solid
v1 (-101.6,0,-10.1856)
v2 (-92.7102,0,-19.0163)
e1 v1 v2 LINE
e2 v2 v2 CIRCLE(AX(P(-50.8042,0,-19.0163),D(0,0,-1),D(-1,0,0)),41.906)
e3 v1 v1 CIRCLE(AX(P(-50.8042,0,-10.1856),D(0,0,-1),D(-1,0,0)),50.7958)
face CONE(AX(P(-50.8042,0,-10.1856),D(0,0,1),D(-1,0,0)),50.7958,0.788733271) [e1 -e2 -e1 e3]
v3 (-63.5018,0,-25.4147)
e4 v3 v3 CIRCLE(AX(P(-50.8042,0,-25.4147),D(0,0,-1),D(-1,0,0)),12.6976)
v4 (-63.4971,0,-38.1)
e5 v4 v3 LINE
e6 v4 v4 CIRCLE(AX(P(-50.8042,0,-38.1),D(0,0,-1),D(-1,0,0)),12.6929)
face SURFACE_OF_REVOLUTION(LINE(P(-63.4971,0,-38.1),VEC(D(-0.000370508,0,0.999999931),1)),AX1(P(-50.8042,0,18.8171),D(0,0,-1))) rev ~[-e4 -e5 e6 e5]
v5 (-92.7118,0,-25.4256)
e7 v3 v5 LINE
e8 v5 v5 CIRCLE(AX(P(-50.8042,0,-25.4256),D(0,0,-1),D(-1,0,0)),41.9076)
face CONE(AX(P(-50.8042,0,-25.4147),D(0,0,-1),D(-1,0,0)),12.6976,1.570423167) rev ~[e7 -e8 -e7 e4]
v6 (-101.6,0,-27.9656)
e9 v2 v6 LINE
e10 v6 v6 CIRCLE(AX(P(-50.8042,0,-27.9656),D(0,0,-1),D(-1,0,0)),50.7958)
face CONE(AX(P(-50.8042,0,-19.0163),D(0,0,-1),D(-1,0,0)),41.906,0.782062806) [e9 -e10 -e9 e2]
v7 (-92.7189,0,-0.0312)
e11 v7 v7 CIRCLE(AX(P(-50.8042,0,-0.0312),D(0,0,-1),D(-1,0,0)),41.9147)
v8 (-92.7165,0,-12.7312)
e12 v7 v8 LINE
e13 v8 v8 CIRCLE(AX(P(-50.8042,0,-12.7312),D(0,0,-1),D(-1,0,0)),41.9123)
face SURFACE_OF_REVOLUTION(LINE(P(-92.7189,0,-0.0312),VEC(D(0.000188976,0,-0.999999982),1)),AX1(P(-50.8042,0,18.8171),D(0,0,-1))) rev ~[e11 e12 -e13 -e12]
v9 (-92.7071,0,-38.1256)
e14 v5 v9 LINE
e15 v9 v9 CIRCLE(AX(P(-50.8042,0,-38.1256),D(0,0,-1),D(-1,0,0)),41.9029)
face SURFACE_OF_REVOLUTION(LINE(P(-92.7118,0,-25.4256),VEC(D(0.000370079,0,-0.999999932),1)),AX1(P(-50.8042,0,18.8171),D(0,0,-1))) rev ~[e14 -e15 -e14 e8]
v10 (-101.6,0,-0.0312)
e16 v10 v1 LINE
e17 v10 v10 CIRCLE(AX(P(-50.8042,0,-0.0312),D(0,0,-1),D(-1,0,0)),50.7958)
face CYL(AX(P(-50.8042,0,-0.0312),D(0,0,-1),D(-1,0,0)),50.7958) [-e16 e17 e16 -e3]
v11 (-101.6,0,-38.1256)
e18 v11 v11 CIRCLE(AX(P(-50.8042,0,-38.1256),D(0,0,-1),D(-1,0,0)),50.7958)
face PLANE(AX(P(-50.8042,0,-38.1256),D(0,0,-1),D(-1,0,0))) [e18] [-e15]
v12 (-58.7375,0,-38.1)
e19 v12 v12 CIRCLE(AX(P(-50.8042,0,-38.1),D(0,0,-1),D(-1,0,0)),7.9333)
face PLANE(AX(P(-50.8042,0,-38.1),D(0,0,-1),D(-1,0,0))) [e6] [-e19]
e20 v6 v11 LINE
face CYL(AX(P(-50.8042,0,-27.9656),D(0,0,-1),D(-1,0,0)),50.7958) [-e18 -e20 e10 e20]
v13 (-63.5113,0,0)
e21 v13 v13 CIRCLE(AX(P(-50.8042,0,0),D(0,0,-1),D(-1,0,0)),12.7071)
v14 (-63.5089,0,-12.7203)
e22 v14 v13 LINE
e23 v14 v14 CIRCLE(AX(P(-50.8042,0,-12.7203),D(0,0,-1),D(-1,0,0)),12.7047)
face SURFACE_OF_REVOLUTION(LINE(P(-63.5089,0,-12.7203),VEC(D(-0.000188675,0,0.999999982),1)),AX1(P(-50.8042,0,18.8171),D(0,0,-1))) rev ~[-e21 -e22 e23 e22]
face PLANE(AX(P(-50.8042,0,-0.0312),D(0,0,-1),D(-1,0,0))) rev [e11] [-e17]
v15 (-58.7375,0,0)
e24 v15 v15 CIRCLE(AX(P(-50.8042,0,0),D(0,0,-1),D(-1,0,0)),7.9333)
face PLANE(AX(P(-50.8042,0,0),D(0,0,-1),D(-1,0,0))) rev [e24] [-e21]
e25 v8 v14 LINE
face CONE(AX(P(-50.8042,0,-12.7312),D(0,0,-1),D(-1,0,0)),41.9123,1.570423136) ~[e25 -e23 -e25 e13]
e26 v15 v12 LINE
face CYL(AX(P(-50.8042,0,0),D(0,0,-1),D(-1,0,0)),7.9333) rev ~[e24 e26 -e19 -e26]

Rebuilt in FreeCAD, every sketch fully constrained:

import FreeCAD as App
import Part
import Sketcher

V = App.Vector
Q = App.Units.Quantity


def add_polygon(sketch, points):
    """Adds a closed chain of lines whose ends are joined by coincident constraints."""
    first, n = sketch.GeometryCount, len(points)
    for a, b in zip(points, points[1:] + points[:1]):
        sketch.addGeometry(Part.LineSegment(App.Vector(*a, 0), App.Vector(*b, 0)), False)
    for i in range(n):
        sketch.addConstraint(Sketcher.Constraint("Coincident", first + i, 2, first + (i + 1) % n, 1))

doc = App.newDocument("Part")
body = doc.addObject("PartDesign::Body", "Body")

# Sketch on XZ plane
sketch1 = body.newObject("Sketcher::SketchObject", "Sketch")
sketch1.AttachmentSupport = (doc.getObject("XZ_Plane"), [""])
sketch1.MapMode = "FlatFace"
add_polygon(sketch1, [(-63.5113, 0), (-58.7375, 0), (-58.7375, -38.1), (-63.4971, -38.1), (-63.5018, -25.4147), (-92.7118, -25.4256), (-92.7071, -38.1256), (-101.6, -38.1256), (-101.6, -27.9656), (-92.7102, -19.0163), (-101.6, -10.1856), (-101.6, -0.0312), (-92.7189, -0.0312), (-92.7165, -12.7312), (-63.5089, -12.7203)])  # lines 0-14
sketch1.addGeometry(Part.LineSegment(V(-50.8042, 0, 0), V(-50.8042, -38.1256, 0)), True)  # axis
sketch1.addConstraint([
    Sketcher.Constraint("Horizontal", 0),
    Sketcher.Constraint("Vertical", 1),
    Sketcher.Constraint("Horizontal", 2),
    Sketcher.Constraint("Horizontal", 6),
    Sketcher.Constraint("Vertical", 7),
    Sketcher.Constraint("Vertical", 10),
    Sketcher.Constraint("Horizontal", 11),
    Sketcher.Constraint("Vertical", 15),
    Sketcher.Constraint("PointOnObject", 0, 2, -1),
    Sketcher.Constraint("PointOnObject", 15, 1, -1),
    Sketcher.Constraint("Distance", 5, Q("0.5 in")),
    Sketcher.Constraint("Distance", 12, Q("0.5 in")),
    Sketcher.Constraint("DistanceY", 1, 2, 1, 1, Q("1.5 in")),
    Sketcher.Constraint("DistanceY", 7, 1, 7, 2, Q("0.4 in")),
    Sketcher.Constraint("DistanceX", 6, 2, -1, 1, Q("4 in")),
    Sketcher.Constraint("DistanceX", 9, 2, -1, 1, Q("4 in")),
    Sketcher.Constraint("DistanceY", 4, 2, 9, 2, Q("0.6 in")),
    Sketcher.Constraint("Distance", 4, Q("1.15 in")),
    Sketcher.Constraint("DistanceY", 15, 2, 15, 1, Q("1.501 in")),
    Sketcher.Constraint("DistanceX", 8, 2, -1, 1, Q("3.65 in")),
    Sketcher.Constraint("DistanceX", 5, 2, 2, 2, Q("1.15 in")),
    Sketcher.Constraint("DistanceX", 0, 2, -1, 1, Q("2.3125 in")),
    Sketcher.Constraint("DistanceY", 4, 2, -1, 1, Q("1.001 in")),
    Sketcher.Constraint("Distance", 13, Q("1.1499 in")),
    Sketcher.Constraint("Distance", 14, Q("0.5008 in")),
    Sketcher.Constraint("DistanceX", 0, 1, 0, 2, Q("4.7738 mm")),
    Sketcher.Constraint("DistanceX", 2, 2, 2, 1, Q("4.7596 mm")),
    Sketcher.Constraint("DistanceX", 11, 1, 11, 2, Q("8.881 mm")),
    Sketcher.Constraint("DistanceY", 10, 1, 10, 2, Q("10.1544 mm")),
    Sketcher.Constraint("DistanceY", 3, 2, 8, 2, Q("0.2519 in")),
    Sketcher.Constraint("DistanceX", 11, 2, 12, 2, Q("0.0001 in")),
    Sketcher.Constraint("DistanceX", 3, 2, 15, 1, Q("0.4999 in")),
    Sketcher.Constraint("Distance", 3, Q("12.6853 mm")),
    Sketcher.Constraint("DistanceX", 3, 2, -1, 1, Q("63.5018 mm")),
])
revolution = body.newObject("PartDesign::Revolution", "Revolution")
revolution.Profile = sketch1
revolution.ReferenceAxis = (sketch1, ["Axis0"])
revolution.Angle = 360

doc.recompute()
